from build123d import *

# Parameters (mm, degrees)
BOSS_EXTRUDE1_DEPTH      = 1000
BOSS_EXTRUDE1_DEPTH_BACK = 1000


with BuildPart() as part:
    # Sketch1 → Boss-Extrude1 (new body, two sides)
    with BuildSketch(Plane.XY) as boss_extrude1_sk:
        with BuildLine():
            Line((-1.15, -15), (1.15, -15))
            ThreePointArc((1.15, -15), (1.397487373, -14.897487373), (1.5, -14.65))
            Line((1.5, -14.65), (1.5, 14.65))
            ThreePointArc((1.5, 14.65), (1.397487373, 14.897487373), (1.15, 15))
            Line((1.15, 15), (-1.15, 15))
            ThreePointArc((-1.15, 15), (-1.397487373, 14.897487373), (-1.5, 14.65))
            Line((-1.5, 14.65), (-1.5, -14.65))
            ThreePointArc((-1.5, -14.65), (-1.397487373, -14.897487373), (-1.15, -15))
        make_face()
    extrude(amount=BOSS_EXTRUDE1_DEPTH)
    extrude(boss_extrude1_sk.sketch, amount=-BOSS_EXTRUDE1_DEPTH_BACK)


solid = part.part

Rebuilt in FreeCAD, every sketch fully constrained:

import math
import FreeCAD as App
import Part
import Sketcher
from FreeCAD import Vector

doc = App.newDocument("Part")
params = doc.addObject("Spreadsheet::Sheet", "Params")
for row, (alias, value) in enumerate([
    ("sketch1_radius", "0.35 mm"),
    ("sketch1_width", "2.3 mm"),
    ("sketch1_height", "29.3 mm"),
    ("pad1_length", "1000 mm"),
    ("pad1_length2", "1000 mm"),
], start=1):
    params.set(f"A{row}", alias)
    params.set(f"B{row}", "=" + value)
    params.setAlias(f"B{row}", alias)

body = doc.addObject("PartDesign::Body", "Body")

# Sketch on XY plane
sketch1 = doc.addObject("Sketcher::SketchObject", "Sketch")
body.addObject(sketch1)
sketch1.AttachmentSupport = (doc.XY_Plane, [""])
sketch1.MapMode = "FlatFace"
sketch1.addGeometry(Part.LineSegment(Vector(-1.15, -15, 0), Vector(1.15, -15, 0)), False)
sketch1.addGeometry(Part.ArcOfCircle(Part.Circle(Vector(1.15, -14.65, 0), Vector(0, 0, 1), 0.35), math.radians(-90), math.radians(0)), False)
sketch1.addGeometry(Part.LineSegment(Vector(1.5, -14.65, 0), Vector(1.5, 14.65, 0)), False)
sketch1.addGeometry(Part.ArcOfCircle(Part.Circle(Vector(1.15, 14.65, 0), Vector(0, 0, 1), 0.35), math.radians(0), math.radians(90)), False)
sketch1.addGeometry(Part.LineSegment(Vector(1.15, 15, 0), Vector(-1.15, 15, 0)), False)
sketch1.addGeometry(Part.ArcOfCircle(Part.Circle(Vector(-1.15, 14.65, 0), Vector(0, 0, 1), 0.35), math.radians(90), math.radians(180)), False)
sketch1.addGeometry(Part.LineSegment(Vector(-1.5, 14.65, 0), Vector(-1.5, -14.65, 0)), False)
sketch1.addGeometry(Part.ArcOfCircle(Part.Circle(Vector(-1.15, -14.65, 0), Vector(0, 0, 1), 0.35), math.radians(-180), math.radians(-90)), False)
sketch1.addConstraint(Sketcher.Constraint("Tangent", 0, 2, 1, 1))
sketch1.addConstraint(Sketcher.Constraint("Tangent", 1, 2, 2, 1))
sketch1.addConstraint(Sketcher.Constraint("Tangent", 2, 2, 3, 1))
sketch1.addConstraint(Sketcher.Constraint("Tangent", 3, 2, 4, 1))
sketch1.addConstraint(Sketcher.Constraint("Tangent", 4, 2, 5, 1))
sketch1.addConstraint(Sketcher.Constraint("Tangent", 5, 2, 6, 1))
sketch1.addConstraint(Sketcher.Constraint("Tangent", 6, 2, 7, 1))
sketch1.addConstraint(Sketcher.Constraint("Tangent", 7, 2, 0, 1))
sketch1.addConstraint(Sketcher.Constraint("Horizontal", 0))
sketch1.addConstraint(Sketcher.Constraint("Vertical", 2))
sketch1.addConstraint(Sketcher.Constraint("Horizontal", 4))
sketch1.addConstraint(Sketcher.Constraint("Vertical", 6))
sketch1.addConstraint(Sketcher.Constraint("Equal", 1, 3))
sketch1.addConstraint(Sketcher.Constraint("Equal", 3, 5))
sketch1.addConstraint(Sketcher.Constraint("Equal", 5, 7))
sketch1.addConstraint(Sketcher.Constraint("Symmetric", 1, 3, 5, 3, -1, 1))
sketch1.addConstraint(Sketcher.Constraint("Radius", 1, 0.35))
sketch1.addConstraint(Sketcher.Constraint("DistanceX", 0, 1, 0, 2, 2.3))
sketch1.addConstraint(Sketcher.Constraint("DistanceY", 2, 1, 2, 2, 29.3))
sketch1.setExpression("Constraints[16]", "Params.sketch1_radius")
sketch1.setExpression("Constraints[17]", "Params.sketch1_width")
sketch1.setExpression("Constraints[18]", "Params.sketch1_height")
pad1 = doc.addObject("PartDesign::Pad", "Pad")
body.addObject(pad1)
pad1.Profile = sketch1
pad1.Type = "TwoLengths"
pad1.setExpression("Length", "Params.pad1_length")
pad1.setExpression("Length2", "Params.pad1_length2")

doc.recompute()
